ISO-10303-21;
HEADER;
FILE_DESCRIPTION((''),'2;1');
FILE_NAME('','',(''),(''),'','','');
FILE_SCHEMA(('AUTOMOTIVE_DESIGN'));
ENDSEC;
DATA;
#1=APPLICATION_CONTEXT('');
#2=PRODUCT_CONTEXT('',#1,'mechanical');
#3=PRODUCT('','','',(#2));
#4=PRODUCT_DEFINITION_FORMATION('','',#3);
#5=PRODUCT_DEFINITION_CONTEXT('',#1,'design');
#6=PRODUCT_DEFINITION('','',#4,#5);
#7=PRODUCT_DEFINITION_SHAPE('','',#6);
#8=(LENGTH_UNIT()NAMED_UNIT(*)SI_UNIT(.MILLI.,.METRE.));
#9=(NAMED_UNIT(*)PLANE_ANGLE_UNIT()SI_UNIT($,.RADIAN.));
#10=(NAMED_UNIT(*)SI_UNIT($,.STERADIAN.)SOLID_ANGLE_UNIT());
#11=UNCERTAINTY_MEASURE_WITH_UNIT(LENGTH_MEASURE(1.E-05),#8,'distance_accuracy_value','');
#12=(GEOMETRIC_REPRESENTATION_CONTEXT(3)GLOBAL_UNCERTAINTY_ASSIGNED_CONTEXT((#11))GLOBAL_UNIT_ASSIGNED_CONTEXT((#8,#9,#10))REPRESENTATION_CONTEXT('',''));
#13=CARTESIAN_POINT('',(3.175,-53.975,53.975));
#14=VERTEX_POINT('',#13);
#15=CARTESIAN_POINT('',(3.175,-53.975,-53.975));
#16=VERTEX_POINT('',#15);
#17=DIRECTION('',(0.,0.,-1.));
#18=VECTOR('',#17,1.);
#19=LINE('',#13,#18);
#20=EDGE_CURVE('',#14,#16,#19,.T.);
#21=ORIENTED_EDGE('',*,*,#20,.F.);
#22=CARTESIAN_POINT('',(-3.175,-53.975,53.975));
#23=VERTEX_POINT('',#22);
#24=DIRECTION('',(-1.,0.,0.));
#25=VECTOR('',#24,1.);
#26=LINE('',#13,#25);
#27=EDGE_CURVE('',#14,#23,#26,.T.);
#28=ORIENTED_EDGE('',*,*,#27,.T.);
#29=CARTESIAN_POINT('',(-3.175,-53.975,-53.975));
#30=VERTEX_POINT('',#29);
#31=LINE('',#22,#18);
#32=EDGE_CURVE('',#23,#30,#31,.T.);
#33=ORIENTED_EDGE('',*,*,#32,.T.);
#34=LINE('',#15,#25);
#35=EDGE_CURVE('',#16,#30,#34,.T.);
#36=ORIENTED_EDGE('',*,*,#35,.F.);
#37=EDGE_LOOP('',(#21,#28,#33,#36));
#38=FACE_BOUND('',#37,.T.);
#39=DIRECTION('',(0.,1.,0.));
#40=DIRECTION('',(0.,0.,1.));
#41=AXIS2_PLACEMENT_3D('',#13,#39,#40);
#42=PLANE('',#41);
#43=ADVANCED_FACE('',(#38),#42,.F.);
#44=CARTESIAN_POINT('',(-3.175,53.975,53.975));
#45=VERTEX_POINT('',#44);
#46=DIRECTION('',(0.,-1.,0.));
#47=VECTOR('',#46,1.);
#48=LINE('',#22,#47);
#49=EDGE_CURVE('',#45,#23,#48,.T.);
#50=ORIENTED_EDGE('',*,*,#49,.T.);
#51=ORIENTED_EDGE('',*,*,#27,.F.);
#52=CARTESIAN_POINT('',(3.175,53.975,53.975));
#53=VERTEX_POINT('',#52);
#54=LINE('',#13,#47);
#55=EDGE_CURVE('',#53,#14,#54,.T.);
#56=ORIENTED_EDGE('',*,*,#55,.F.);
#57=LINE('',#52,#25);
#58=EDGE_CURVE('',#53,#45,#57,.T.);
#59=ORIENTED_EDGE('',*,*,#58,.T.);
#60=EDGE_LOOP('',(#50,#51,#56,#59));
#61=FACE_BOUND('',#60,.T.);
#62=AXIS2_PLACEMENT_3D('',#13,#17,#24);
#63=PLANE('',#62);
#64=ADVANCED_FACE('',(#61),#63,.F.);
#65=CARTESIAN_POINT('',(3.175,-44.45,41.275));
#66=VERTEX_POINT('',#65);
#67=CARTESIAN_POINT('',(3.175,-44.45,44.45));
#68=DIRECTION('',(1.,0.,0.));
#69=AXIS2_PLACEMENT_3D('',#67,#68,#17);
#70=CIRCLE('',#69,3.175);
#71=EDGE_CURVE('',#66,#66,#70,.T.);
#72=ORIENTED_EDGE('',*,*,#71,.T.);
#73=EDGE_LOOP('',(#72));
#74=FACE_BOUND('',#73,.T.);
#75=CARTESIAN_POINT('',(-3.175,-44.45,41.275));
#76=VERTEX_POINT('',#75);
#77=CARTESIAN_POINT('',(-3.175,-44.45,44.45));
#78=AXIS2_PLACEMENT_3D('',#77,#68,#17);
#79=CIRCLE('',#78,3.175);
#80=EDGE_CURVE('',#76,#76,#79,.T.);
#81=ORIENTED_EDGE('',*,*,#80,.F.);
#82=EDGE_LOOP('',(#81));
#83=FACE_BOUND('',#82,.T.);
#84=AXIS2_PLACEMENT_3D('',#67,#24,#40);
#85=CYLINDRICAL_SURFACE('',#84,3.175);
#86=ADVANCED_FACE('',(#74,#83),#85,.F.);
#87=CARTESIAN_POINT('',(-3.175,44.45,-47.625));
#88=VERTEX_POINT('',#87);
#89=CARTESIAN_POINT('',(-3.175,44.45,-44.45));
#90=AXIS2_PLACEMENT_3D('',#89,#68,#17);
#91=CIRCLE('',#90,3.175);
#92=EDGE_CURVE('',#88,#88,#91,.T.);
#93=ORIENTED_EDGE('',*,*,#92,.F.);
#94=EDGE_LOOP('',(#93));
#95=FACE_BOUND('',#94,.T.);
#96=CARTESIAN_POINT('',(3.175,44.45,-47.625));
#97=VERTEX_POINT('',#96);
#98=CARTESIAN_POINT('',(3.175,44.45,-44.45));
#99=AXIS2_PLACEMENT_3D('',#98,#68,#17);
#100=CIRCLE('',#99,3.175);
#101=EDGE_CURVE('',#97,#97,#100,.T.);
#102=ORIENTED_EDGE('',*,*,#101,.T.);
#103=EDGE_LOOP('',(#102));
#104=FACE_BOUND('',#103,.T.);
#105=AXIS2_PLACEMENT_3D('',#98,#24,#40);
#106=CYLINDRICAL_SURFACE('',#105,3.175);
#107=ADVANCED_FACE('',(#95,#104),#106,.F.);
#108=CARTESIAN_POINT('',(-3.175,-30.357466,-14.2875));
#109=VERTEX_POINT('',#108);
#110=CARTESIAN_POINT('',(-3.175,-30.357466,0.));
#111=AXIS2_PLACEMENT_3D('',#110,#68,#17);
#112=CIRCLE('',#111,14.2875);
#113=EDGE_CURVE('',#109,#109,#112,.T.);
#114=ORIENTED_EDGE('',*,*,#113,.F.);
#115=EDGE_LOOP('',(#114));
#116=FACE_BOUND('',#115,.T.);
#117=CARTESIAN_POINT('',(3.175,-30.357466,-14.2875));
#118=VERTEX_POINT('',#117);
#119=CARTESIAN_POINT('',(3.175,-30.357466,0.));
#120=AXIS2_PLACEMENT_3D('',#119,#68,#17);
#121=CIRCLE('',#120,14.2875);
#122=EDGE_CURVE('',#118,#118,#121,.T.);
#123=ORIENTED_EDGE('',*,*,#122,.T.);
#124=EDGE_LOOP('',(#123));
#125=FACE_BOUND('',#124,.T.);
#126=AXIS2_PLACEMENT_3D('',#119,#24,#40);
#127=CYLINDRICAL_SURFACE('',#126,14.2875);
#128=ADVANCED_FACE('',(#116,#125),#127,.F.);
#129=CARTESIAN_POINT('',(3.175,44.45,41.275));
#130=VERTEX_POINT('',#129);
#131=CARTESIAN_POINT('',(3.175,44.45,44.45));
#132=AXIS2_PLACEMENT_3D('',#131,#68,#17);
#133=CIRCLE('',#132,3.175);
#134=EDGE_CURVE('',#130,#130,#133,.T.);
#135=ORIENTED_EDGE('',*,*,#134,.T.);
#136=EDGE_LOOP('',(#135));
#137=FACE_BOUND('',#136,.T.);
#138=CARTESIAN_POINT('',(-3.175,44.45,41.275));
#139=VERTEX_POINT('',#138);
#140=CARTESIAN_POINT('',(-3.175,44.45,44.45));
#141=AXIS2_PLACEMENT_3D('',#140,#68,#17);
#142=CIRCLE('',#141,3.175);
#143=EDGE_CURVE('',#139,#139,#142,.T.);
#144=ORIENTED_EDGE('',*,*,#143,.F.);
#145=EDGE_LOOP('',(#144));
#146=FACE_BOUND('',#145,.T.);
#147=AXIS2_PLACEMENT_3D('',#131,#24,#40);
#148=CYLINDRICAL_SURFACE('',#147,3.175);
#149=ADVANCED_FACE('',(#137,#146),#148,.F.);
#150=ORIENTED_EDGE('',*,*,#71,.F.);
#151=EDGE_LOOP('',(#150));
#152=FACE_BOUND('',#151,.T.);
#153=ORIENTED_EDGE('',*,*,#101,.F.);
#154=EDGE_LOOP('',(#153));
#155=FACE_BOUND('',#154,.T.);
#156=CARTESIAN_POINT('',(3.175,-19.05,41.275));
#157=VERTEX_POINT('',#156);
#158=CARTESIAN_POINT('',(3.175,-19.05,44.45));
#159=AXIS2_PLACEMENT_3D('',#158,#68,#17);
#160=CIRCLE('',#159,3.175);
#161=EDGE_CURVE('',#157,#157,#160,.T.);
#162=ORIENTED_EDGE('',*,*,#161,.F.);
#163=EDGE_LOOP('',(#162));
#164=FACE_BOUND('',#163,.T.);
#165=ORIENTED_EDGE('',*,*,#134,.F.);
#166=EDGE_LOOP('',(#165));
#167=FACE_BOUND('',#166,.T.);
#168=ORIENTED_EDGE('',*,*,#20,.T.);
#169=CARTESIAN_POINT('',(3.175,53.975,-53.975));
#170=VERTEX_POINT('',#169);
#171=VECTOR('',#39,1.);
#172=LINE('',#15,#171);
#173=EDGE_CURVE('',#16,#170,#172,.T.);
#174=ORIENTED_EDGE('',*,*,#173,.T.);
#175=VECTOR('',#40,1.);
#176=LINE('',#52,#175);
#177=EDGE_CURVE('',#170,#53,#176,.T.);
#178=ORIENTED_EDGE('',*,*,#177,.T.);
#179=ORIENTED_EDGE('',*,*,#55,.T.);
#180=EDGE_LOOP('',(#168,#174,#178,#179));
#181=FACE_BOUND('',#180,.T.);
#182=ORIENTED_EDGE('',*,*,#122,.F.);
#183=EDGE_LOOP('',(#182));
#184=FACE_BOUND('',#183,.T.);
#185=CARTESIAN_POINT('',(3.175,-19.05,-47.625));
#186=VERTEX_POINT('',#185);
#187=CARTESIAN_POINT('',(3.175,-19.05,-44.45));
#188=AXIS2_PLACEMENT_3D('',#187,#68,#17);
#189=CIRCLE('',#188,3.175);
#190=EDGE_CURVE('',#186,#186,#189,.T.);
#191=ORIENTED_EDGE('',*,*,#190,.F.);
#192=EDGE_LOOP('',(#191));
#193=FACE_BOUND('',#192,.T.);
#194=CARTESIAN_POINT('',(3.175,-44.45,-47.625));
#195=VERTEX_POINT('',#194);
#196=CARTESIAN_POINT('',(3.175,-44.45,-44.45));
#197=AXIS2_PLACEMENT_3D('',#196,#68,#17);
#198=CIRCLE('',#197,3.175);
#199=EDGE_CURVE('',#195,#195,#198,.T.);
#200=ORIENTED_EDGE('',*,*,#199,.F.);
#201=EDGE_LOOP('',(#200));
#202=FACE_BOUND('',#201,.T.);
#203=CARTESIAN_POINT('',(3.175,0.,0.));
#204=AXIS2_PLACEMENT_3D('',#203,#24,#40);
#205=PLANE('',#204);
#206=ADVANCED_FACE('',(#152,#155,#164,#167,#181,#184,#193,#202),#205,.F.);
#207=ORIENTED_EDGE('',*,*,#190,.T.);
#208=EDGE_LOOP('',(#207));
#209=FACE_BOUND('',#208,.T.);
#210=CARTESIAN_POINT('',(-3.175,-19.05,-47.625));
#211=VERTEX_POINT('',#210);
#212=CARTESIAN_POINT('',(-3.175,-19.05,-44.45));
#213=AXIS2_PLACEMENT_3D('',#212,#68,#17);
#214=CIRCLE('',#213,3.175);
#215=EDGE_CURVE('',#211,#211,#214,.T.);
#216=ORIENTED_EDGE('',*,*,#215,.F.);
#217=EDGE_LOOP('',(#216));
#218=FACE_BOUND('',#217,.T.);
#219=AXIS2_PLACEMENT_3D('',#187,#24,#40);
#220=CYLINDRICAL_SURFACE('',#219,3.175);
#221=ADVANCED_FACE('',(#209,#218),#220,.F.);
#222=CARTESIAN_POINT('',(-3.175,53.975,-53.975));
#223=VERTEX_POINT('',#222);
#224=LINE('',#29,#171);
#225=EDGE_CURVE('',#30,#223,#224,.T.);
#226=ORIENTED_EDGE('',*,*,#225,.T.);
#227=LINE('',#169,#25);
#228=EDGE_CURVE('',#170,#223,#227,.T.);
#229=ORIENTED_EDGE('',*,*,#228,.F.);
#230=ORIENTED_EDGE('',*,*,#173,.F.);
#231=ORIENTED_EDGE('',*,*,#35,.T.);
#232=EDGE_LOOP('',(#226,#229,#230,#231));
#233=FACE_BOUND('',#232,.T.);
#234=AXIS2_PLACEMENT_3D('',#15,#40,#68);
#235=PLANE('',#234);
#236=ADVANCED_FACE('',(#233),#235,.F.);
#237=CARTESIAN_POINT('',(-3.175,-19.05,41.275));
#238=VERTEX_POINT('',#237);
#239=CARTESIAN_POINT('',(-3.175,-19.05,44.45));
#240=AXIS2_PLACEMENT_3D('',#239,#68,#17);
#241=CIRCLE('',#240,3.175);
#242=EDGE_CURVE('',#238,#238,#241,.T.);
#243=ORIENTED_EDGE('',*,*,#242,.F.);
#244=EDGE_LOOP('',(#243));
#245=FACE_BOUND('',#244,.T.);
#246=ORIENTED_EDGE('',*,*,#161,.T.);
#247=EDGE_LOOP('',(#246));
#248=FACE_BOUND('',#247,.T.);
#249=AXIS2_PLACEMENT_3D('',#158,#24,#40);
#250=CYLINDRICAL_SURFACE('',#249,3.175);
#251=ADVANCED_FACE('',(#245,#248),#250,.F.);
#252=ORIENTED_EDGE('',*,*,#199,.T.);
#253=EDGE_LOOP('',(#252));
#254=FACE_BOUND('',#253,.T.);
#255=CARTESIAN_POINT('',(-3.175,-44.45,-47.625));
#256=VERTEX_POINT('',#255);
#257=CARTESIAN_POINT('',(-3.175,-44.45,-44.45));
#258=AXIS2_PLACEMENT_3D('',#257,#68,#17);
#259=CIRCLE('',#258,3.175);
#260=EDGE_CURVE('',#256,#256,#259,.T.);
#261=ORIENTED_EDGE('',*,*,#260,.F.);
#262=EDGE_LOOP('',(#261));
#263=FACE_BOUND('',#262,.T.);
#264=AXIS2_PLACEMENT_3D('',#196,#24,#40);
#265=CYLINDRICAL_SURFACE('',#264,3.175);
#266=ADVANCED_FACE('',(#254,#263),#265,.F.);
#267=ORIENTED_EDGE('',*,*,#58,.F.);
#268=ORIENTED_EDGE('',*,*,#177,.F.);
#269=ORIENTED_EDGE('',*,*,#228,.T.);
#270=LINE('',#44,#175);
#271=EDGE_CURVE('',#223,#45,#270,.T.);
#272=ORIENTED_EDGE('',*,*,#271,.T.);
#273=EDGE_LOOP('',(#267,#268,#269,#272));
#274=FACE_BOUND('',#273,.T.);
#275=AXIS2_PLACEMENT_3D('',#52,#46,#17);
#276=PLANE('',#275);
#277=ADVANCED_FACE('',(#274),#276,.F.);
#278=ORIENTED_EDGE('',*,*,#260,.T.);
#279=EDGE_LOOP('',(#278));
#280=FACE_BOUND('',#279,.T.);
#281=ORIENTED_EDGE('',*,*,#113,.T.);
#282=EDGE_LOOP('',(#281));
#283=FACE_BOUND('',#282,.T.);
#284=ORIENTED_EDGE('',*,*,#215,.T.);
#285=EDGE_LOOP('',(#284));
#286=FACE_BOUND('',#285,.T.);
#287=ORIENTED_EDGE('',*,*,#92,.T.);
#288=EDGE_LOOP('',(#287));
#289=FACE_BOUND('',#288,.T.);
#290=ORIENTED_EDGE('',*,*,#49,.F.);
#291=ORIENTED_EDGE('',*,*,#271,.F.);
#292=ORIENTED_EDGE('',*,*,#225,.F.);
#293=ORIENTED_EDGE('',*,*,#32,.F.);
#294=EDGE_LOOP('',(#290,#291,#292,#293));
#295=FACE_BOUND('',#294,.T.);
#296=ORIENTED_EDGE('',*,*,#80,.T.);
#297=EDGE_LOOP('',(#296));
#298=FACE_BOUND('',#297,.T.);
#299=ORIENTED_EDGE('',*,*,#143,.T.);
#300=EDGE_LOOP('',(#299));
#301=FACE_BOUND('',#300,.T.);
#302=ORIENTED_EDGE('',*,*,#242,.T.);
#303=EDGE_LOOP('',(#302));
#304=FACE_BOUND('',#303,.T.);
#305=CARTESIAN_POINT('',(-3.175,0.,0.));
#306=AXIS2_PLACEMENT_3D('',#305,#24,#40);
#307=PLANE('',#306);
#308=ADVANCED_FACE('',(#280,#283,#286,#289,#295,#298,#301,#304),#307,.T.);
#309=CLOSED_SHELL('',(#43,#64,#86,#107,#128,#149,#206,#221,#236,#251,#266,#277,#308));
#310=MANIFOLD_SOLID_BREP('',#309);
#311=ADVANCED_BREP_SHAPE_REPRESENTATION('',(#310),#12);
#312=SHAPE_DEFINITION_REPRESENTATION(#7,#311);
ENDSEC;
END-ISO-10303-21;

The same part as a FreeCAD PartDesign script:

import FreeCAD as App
import Part
import Sketcher
Q = App.Units.Quantity


def add_polygon(sketch, points):
    """Adds a closed chain of lines whose ends are joined by coincident constraints."""
    first, n = sketch.GeometryCount, len(points)
    for a, b in zip(points, points[1:] + points[:1]):
        sketch.addGeometry(Part.LineSegment(App.Vector(*a, 0), App.Vector(*b, 0)), False)
    for i in range(n):
        sketch.addConstraint(Sketcher.Constraint("Coincident", first + i, 2, first + (i + 1) % n, 1))

doc = App.newDocument("Part")
body = doc.addObject("PartDesign::Body", "Body")

# Sketch on YZ plane
sketch1 = body.newObject("Sketcher::SketchObject", "Sketch")
sketch1.AttachmentSupport = (doc.getObject("YZ_Plane"), [""])
sketch1.MapMode = "FlatFace"
add_polygon(sketch1, [(54, 54), (-54, 54), (-54, -54), (54, -54)])  # lines 0-3
sketch1.addGeometry(Part.Circle(App.Vector(-44.5, 44.5, 0), App.Vector(0, 0, 1), 3.2), False)  # 4
sketch1.addGeometry(Part.Circle(App.Vector(-19.1, 44.5, 0), App.Vector(0, 0, 1), 3.2), False)  # 5
sketch1.addGeometry(Part.Circle(App.Vector(-30.4, 0, 0), App.Vector(0, 0, 1), 14.3), False)  # 6
sketch1.addGeometry(Part.Circle(App.Vector(-44.5, -44.5, 0), App.Vector(0, 0, 1), 3.2), False)  # 7
sketch1.addGeometry(Part.Circle(App.Vector(-19.1, -44.5, 0), App.Vector(0, 0, 1), 3.2), False)  # 8
sketch1.addGeometry(Part.Circle(App.Vector(44.5, 44.5, 0), App.Vector(0, 0, 1), 3.2), False)  # 9
sketch1.addGeometry(Part.Circle(App.Vector(44.5, -44.5, 0), App.Vector(0, 0, 1), 3.2), False)  # 10
sketch1.addConstraint(Sketcher.Constraint("Horizontal", 0))
sketch1.addConstraint(Sketcher.Constraint("Vertical", 1))
sketch1.addConstraint(Sketcher.Constraint("Horizontal", 2))
sketch1.addConstraint(Sketcher.Constraint("Vertical", 3))
sketch1.addConstraint(Sketcher.Constraint("Equal", 4, 5))
sketch1.addConstraint(Sketcher.Constraint("Equal", 5, 7))
sketch1.addConstraint(Sketcher.Constraint("Equal", 7, 8))
sketch1.addConstraint(Sketcher.Constraint("Equal", 8, 9))
sketch1.addConstraint(Sketcher.Constraint("Equal", 9, 10))
sketch1.addConstraint(Sketcher.Constraint("Symmetric", 7, 3, 9, 3, -1, 1))
sketch1.addConstraint(Sketcher.Constraint("Symmetric", 4, 3, 10, 3, -1, 1))
sketch1.addConstraint(Sketcher.Constraint("Symmetric", 0, 2, 2, 2, -1, 1))
sketch1.addConstraint(Sketcher.Constraint("Symmetric", 4, 3, 9, 3, -2))
sketch1.addConstraint(Sketcher.Constraint("Symmetric", 5, 3, 8, 3, -1))
sketch1.addConstraint(Sketcher.Constraint("PointOnObject", 6, 3, -1))
sketch1.addConstraint(Sketcher.Constraint("Horizontal", 4, 3, 5, 3))
sketch1.addConstraint(Sketcher.Constraint("Equal", 2, 1))
sketch1.addConstraint(Sketcher.Constraint("Diameter", 4, Q("0.25 in")))
sketch1.addConstraint(Sketcher.Constraint("Diameter", 6, Q("1.125 in")))
sketch1.addConstraint(Sketcher.Constraint("DistanceX", 4, 3, 5, 3, Q("1 in")))
sketch1.addConstraint(Sketcher.Constraint("DistanceX", 0, 2, 0, 1, Q("4.25 in")))
sketch1.addConstraint(Sketcher.Constraint("DistanceY", 7, 3, 4, 3, Q("3.5 in")))
sketch1.addConstraint(Sketcher.Constraint("DistanceX", 5, 3, 9, 3, Q("2.5 in")))
sketch1.addConstraint(Sketcher.Constraint("DistanceX", 6, 3, -1, 1, 30.357466))
pad1 = body.newObject("PartDesign::Pad", "Pad")
pad1.Profile = sketch1
pad1.Length = Q("0.25 in")
pad1.Midplane = True

doc.recompute()
